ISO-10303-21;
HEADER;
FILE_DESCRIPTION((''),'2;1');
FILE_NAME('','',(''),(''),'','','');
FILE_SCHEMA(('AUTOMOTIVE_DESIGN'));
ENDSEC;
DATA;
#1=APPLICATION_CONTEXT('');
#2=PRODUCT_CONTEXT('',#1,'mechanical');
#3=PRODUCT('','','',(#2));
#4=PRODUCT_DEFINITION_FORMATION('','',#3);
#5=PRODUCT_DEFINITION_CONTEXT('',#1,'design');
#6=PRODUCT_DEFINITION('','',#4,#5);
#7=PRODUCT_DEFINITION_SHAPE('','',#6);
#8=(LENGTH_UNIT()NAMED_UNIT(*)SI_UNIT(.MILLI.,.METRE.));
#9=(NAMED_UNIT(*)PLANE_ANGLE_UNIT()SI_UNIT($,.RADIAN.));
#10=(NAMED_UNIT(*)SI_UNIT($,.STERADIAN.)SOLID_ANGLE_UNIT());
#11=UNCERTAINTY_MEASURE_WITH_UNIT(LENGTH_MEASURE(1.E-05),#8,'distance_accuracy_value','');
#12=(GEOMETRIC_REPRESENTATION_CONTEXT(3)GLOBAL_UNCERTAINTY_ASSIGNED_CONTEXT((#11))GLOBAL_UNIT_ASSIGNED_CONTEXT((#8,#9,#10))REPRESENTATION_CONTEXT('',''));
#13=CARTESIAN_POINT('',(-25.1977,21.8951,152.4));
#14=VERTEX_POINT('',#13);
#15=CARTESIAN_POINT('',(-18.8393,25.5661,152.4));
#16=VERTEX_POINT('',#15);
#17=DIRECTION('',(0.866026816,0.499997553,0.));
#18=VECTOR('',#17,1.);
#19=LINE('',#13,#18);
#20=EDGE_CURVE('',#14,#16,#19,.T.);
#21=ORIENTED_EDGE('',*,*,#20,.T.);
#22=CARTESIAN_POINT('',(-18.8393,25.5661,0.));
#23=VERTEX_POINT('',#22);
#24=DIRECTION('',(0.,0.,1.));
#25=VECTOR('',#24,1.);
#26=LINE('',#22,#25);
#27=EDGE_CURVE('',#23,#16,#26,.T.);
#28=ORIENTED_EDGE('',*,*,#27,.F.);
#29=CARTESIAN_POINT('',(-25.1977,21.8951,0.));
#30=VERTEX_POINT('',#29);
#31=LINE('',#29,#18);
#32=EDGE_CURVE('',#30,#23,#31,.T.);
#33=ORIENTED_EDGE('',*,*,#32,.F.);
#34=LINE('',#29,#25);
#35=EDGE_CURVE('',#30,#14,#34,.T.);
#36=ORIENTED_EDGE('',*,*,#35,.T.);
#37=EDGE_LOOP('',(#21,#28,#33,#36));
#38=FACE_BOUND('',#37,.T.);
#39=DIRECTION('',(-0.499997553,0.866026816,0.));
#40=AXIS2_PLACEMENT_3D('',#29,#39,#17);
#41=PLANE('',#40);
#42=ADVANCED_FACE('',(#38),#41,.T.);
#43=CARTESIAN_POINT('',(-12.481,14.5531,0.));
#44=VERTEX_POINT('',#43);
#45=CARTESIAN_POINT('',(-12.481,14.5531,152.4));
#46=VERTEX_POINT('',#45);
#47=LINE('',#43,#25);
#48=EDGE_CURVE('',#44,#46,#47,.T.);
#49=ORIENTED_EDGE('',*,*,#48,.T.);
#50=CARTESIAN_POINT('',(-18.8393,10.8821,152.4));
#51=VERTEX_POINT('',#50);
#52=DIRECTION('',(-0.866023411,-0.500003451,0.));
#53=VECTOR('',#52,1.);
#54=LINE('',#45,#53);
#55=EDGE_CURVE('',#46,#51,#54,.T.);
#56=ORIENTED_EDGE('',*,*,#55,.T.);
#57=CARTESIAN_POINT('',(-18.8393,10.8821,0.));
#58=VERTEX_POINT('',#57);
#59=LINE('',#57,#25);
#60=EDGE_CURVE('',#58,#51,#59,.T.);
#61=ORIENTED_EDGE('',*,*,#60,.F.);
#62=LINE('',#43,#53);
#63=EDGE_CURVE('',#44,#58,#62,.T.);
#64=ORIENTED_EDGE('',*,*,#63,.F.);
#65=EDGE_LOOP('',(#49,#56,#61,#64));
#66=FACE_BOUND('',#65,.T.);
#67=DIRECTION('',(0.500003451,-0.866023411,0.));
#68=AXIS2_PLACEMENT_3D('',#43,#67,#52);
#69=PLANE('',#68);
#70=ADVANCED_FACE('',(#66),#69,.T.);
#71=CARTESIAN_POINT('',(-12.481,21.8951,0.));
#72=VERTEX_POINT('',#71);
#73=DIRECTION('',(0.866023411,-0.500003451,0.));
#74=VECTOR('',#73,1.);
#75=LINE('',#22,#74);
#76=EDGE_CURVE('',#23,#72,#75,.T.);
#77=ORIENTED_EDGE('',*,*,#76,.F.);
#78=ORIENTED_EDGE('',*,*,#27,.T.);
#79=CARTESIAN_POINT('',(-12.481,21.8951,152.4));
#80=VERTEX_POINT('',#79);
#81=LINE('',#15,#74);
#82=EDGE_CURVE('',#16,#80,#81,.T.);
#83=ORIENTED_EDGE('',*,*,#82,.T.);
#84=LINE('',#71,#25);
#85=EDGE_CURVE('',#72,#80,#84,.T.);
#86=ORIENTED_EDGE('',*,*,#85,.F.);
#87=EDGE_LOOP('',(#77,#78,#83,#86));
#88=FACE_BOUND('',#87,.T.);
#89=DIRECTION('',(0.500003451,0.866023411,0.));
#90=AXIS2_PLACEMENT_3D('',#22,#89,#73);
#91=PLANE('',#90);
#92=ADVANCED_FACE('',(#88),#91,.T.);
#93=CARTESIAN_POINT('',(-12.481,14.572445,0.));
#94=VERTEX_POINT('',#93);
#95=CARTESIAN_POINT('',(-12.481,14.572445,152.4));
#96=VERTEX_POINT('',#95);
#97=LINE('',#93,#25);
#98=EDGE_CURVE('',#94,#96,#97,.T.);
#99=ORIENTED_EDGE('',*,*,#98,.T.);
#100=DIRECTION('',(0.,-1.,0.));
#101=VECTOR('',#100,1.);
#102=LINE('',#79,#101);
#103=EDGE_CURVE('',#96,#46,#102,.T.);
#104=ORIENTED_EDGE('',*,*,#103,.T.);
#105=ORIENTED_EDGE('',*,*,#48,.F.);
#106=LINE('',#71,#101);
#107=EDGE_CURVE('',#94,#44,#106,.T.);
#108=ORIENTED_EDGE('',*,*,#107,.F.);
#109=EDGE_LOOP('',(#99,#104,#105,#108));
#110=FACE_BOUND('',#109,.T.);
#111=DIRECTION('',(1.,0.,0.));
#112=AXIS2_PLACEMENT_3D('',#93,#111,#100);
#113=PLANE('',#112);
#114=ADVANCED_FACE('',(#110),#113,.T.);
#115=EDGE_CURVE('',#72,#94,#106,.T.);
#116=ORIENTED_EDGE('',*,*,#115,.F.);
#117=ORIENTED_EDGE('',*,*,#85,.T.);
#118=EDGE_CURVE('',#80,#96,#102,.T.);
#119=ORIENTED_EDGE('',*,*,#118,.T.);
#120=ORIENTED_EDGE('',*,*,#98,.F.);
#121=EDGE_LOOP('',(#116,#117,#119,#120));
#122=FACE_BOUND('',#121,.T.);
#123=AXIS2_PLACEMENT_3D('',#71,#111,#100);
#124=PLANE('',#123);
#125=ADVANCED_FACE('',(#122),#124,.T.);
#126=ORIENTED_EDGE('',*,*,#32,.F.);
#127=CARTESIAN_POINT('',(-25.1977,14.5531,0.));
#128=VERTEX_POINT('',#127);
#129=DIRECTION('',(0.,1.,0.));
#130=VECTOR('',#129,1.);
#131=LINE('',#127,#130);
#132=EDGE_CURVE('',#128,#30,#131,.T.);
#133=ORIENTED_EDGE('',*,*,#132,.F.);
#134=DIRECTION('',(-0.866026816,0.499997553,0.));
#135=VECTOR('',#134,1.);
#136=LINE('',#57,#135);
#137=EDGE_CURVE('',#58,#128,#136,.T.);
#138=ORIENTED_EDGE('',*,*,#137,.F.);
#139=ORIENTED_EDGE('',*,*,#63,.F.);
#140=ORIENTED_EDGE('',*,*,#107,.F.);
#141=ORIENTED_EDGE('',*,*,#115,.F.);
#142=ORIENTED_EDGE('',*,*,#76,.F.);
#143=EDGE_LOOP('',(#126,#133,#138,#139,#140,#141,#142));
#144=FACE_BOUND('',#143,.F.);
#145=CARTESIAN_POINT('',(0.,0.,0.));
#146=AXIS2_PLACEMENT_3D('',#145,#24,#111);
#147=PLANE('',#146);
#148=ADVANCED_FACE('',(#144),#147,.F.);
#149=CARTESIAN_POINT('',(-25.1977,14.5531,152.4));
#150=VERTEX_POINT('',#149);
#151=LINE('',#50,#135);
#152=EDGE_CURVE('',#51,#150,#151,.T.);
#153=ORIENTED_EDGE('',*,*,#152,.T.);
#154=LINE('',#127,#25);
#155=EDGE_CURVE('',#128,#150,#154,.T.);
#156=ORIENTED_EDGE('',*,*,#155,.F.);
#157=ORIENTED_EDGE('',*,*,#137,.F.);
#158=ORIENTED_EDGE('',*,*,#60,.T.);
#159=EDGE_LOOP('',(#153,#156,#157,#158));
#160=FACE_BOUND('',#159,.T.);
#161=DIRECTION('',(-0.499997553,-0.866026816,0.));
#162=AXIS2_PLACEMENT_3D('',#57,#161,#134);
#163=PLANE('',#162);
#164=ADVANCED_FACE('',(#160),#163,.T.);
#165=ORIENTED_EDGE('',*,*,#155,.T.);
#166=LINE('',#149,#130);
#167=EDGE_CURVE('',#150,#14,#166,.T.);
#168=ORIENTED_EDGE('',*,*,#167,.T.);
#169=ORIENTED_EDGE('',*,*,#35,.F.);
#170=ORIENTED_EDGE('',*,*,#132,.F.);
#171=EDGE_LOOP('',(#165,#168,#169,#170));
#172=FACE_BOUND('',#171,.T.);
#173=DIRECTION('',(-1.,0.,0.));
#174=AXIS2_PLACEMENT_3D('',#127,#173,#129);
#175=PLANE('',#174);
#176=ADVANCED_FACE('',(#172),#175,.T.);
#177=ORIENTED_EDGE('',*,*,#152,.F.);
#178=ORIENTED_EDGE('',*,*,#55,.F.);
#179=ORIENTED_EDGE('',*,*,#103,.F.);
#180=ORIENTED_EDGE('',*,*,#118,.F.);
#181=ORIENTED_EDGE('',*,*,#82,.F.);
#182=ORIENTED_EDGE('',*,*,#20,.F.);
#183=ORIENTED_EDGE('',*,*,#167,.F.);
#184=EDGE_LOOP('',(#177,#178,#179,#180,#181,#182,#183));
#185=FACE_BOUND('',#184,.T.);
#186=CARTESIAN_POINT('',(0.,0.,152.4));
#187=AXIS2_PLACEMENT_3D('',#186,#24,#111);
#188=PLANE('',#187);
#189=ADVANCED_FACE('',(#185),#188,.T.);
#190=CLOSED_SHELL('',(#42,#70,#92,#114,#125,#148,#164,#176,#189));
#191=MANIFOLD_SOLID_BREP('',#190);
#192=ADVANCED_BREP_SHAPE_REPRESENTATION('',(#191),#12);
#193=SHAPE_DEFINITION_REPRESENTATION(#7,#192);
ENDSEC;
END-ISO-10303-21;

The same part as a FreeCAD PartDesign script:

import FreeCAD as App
import Part
import Sketcher
from FreeCAD import Vector
Q = App.Units.Quantity


def add_polygon(sketch, points):
    """Adds a closed chain of lines whose ends are joined by coincident constraints."""
    first, n = sketch.GeometryCount, len(points)
    for a, b in zip(points, points[1:] + points[:1]):
        sketch.addGeometry(Part.LineSegment(App.Vector(*a, 0), App.Vector(*b, 0)), False)
    for i in range(n):
        sketch.addConstraint(Sketcher.Constraint("Coincident", first + i, 2, first + (i + 1) % n, 1))

doc = App.newDocument("Part")
body = doc.addObject("PartDesign::Body", "Body")

# Sketch on XY plane
sketch1 = doc.addObject("Sketcher::SketchObject", "Sketch")
body.addObject(sketch1)
sketch1.AttachmentSupport = (doc.XY_Plane, [""])
sketch1.MapMode = "FlatFace"
add_polygon(sketch1, [(-25.1977, 14.5531), (-18.8393, 10.8821), (-12.481, 14.5531), (-12.481, 21.8951), (-18.8393, 25.5661), (-25.1977, 21.8951)])  # lines 0-5
sketch1.addConstraint([
    Sketcher.Constraint("Vertical", 2),
    Sketcher.Constraint("Vertical", 5),
    Sketcher.Constraint("Parallel", 0, 3),
    Sketcher.Constraint("Parallel", 1, 4),
    Sketcher.Constraint("Horizontal", 2, 2, 4, 2),
    Sketcher.Constraint("Horizontal", 1, 2, 5, 2),
    Sketcher.Constraint("Vertical", 0, 2, 3, 2),
    Sketcher.Constraint("Angle", 0, Q("-29.9998 deg")),
    Sketcher.Constraint("DistanceY", -1, 1, 2, 2, Q("0.862 in")),
    Sketcher.Constraint("DistanceY", 2, 1, 2, 2, Q("7.342 mm")),
    Sketcher.Constraint("DistanceX", 0, 2, -1, 1, Q("0.7417 in")),
    Sketcher.Constraint("DistanceY", 0, 2, 3, 2, Q("0.5781 in")),
])
pad1 = doc.addObject("PartDesign::Pad", "Pad")
body.addObject(pad1)
pad1.Profile = sketch1
pad1.Length = Q("6 in")

doc.recompute()
